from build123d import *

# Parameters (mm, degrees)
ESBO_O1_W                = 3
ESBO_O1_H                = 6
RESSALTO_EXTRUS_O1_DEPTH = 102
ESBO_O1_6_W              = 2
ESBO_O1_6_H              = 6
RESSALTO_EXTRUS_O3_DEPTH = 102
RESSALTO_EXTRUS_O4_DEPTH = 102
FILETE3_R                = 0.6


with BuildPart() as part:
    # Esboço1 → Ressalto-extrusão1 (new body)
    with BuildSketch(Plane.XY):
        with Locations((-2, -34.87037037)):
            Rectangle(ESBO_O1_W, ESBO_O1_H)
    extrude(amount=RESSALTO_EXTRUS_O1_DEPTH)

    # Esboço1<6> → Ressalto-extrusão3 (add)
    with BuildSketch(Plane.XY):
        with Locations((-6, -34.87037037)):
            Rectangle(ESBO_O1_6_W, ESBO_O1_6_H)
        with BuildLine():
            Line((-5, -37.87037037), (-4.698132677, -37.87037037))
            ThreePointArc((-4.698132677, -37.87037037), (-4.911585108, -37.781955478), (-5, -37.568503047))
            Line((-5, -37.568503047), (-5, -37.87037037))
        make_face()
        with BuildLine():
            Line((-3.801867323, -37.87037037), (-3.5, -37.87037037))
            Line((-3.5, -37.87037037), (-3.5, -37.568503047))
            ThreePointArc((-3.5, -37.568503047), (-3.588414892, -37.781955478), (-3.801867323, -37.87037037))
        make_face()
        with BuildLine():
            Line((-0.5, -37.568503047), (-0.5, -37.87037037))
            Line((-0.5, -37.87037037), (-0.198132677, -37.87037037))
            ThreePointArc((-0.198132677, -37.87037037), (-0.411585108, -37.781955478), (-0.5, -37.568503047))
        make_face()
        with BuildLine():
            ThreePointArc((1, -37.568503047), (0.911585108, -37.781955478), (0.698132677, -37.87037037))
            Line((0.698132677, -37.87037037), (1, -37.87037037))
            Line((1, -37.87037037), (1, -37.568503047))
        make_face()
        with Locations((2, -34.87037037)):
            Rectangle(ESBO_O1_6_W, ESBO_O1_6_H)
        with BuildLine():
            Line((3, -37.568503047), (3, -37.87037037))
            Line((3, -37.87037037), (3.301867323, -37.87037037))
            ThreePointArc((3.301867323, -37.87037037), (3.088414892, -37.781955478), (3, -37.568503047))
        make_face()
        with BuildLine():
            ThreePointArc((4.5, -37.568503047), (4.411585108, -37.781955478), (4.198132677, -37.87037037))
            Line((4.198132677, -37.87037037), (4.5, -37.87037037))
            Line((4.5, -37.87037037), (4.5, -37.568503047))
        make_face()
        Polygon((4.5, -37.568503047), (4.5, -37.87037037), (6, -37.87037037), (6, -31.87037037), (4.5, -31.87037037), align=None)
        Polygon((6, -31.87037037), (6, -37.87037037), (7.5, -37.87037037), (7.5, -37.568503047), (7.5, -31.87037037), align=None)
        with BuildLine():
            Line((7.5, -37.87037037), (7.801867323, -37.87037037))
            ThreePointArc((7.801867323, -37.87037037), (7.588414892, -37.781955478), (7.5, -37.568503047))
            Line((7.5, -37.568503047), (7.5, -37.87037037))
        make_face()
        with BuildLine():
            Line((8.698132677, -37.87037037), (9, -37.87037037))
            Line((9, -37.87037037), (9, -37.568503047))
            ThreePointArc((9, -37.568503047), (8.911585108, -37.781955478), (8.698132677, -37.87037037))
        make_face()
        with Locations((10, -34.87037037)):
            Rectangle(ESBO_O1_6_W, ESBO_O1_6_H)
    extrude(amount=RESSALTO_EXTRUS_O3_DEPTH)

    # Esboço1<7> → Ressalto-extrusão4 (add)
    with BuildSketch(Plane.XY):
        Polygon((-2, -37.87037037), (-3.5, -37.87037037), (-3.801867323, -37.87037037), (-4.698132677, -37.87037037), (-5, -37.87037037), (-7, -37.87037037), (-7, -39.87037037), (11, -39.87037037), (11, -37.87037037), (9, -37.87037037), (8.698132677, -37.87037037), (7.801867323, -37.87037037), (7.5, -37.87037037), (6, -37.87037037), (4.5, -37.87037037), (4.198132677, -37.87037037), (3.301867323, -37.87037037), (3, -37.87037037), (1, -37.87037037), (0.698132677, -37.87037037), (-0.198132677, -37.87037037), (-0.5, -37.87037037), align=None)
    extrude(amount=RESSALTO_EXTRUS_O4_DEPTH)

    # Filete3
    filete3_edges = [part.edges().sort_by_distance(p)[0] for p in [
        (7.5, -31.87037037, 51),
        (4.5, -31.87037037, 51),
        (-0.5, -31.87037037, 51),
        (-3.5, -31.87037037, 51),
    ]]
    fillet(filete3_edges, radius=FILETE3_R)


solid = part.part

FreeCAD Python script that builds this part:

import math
import FreeCAD as App
import Part
import Sketcher

V = App.Vector
Q = App.Units.Quantity


def edges_at(feature, points):
    """Names of the edges that pass closest to the given points."""
    edges = feature.Shape.Edges
    near = lambda p: min(range(len(edges)), key=lambda i: edges[i].distToShape(Part.Vertex(*p))[0])
    return sorted({f"Edge{near(p) + 1}" for p in points})

doc = App.newDocument("Part")
body = doc.addObject("PartDesign::Body", "Body")
body.AllowCompound = True

# Sketch on XY plane
sketch1 = body.newObject("Sketcher::SketchObject", "Sketch")
sketch1.AttachmentSupport = (doc.getObject("XY_Plane"), [""])
sketch1.MapMode = "FlatFace"
sketch1.addGeometry([
    Part.LineSegment(V(-3.5, -31.9, 0), V(-3.5, -37.9, 0)),
    Part.LineSegment(V(-3.5, -37.9, 0), V(-0.5, -37.9, 0)),
    Part.LineSegment(V(-0.5, -37.9, 0), V(-0.5, -31.9, 0)),
    Part.LineSegment(V(-0.5, -31.9, 0), V(-3.5, -31.9, 0)),
], False)
sketch1.addConstraint([
    Sketcher.Constraint("Coincident", 0, 2, 1, 1),
    Sketcher.Constraint("Coincident", 1, 2, 2, 1),
    Sketcher.Constraint("Coincident", 2, 2, 3, 1),
    Sketcher.Constraint("Coincident", 3, 2, 0, 1),
    Sketcher.Constraint("Vertical", 0),
    Sketcher.Constraint("Horizontal", 1),
    Sketcher.Constraint("Vertical", 2),
    Sketcher.Constraint("Horizontal", 3),
    Sketcher.Constraint("DistanceX", 1, 1, 1, 2, Q("3 mm")),
    Sketcher.Constraint("DistanceY", 0, 2, 0, 1, Q("6 mm")),
    Sketcher.Constraint("DistanceX", 0, 2, -1, 1, Q("3.5 mm")),
    Sketcher.Constraint("DistanceY", 0, 2, -1, 1, Q("37.87037 mm")),
])
pad1 = body.newObject("PartDesign::Pad", "Pad")
pad1.Profile = sketch1
pad1.Length = 102

# Sketch on XY plane
sketch2 = body.newObject("Sketcher::SketchObject", "Sketch001")
sketch2.AttachmentSupport = (doc.getObject("XY_Plane"), [""])
sketch2.MapMode = "FlatFace"
sketch2.addGeometry([
    Part.LineSegment(V(-7, -31.87, 0), V(-7, -37.87, 0)),  # 0
    Part.LineSegment(V(-7, -37.87, 0), V(-4.7, -37.87, 0)),  # 1
    Part.ArcOfCircle(Part.Circle(V(-4.7, -37.57, 0), V(0, 0, 1), 0.3), math.radians(180), math.radians(270)),  # 2
    Part.LineSegment(V(-5, -37.57, 0), V(-5, -31.87, 0)),  # 3
    Part.LineSegment(V(-5, -31.87, 0), V(-7, -31.87, 0)),  # 4
    Part.LineSegment(V(-3.8, -37.87, 0), V(-3.5, -37.87, 0)),  # 5
    Part.LineSegment(V(-3.5, -37.87, 0), V(-3.5, -37.57, 0)),  # 6
    Part.ArcOfCircle(Part.Circle(V(-3.8, -37.57, 0), V(0, 0, 1), 0.3), math.radians(-90), math.radians(0)),  # 7
    Part.LineSegment(V(-0.5, -37.57, 0), V(-0.5, -37.87, 0)),  # 8
    Part.LineSegment(V(-0.5, -37.87, 0), V(-0.2, -37.87, 0)),  # 9
    Part.ArcOfCircle(Part.Circle(V(-0.2, -37.57, 0), V(0, 0, 1), 0.3), math.radians(180), math.radians(270)),  # 10
    Part.ArcOfCircle(Part.Circle(V(0.7, -37.57, 0), V(0, 0, 1), 0.3), math.radians(-90), math.radians(0)),  # 11
    Part.LineSegment(V(0.7, -37.87, 0), V(3.3, -37.87, 0)),  # 12
    Part.ArcOfCircle(Part.Circle(V(3.3, -37.57, 0), V(0, 0, 1), 0.3), math.radians(180), math.radians(270)),  # 13
    Part.LineSegment(V(3, -37.57, 0), V(3, -31.87, 0)),  # 14
    Part.LineSegment(V(3, -31.87, 0), V(1, -31.87, 0)),  # 15
    Part.LineSegment(V(1, -31.87, 0), V(1, -37.57, 0)),  # 16
    Part.ArcOfCircle(Part.Circle(V(4.2, -37.57, 0), V(0, 0, 1), 0.3), math.radians(-90), math.radians(0)),  # 17
    Part.LineSegment(V(4.2, -37.87, 0), V(7.8, -37.87, 0)),  # 18
    Part.ArcOfCircle(Part.Circle(V(7.8, -37.57, 0), V(0, 0, 1), 0.3), math.radians(180), math.radians(270)),  # 19
    Part.LineSegment(V(7.5, -37.57, 0), V(7.5, -31.87, 0)),  # 20
    Part.LineSegment(V(7.5, -31.87, 0), V(4.5, -31.87, 0)),  # 21
    Part.LineSegment(V(4.5, -31.87, 0), V(4.5, -37.57, 0)),  # 22
    Part.LineSegment(V(8.7, -37.87, 0), V(11, -37.87, 0)),  # 23
    Part.LineSegment(V(11, -37.87, 0), V(11, -31.87, 0)),  # 24
    Part.LineSegment(V(11, -31.87, 0), V(9, -31.87, 0)),  # 25
    Part.LineSegment(V(9, -31.87, 0), V(9, -37.57, 0)),  # 26
    Part.ArcOfCircle(Part.Circle(V(8.7, -37.57, 0), V(0, 0, 1), 0.3), math.radians(-90), math.radians(0)),  # 27
], False)
sketch2.addConstraint([
    Sketcher.Constraint("Coincident", 0, 2, 1, 1),
    Sketcher.Constraint("Tangent", 1, 2, 2, 2),
    Sketcher.Constraint("Tangent", 2, 1, 3, 1),
    Sketcher.Constraint("Coincident", 3, 2, 4, 1),
    Sketcher.Constraint("Coincident", 4, 2, 0, 1),
    Sketcher.Constraint("Coincident", 5, 2, 6, 1),
    Sketcher.Constraint("Tangent", 6, 2, 7, 2),
    Sketcher.Constraint("Tangent", 7, 1, 5, 1),
    Sketcher.Constraint("Coincident", 8, 2, 9, 1),
    Sketcher.Constraint("Tangent", 9, 2, 10, 2),
    Sketcher.Constraint("Tangent", 10, 1, 8, 1),
    Sketcher.Constraint("Tangent", 11, 1, 12, 1),
    Sketcher.Constraint("Tangent", 12, 2, 13, 2),
    Sketcher.Constraint("Tangent", 13, 1, 14, 1),
    Sketcher.Constraint("Coincident", 14, 2, 15, 1),
    Sketcher.Constraint("Coincident", 15, 2, 16, 1),
    Sketcher.Constraint("Tangent", 16, 2, 11, 2),
    Sketcher.Constraint("Tangent", 17, 1, 18, 1),
    Sketcher.Constraint("Tangent", 18, 2, 19, 2),
    Sketcher.Constraint("Tangent", 19, 1, 20, 1),
    Sketcher.Constraint("Coincident", 20, 2, 21, 1),
    Sketcher.Constraint("Coincident", 21, 2, 22, 1),
    Sketcher.Constraint("Tangent", 22, 2, 17, 2),
    Sketcher.Constraint("Coincident", 23, 2, 24, 1),
    Sketcher.Constraint("Coincident", 24, 2, 25, 1),
    Sketcher.Constraint("Coincident", 25, 2, 26, 1),
    Sketcher.Constraint("Tangent", 26, 2, 27, 2),
    Sketcher.Constraint("Tangent", 27, 1, 23, 1),
    Sketcher.Constraint("Vertical", 0),
    Sketcher.Constraint("Horizontal", 1),
    Sketcher.Constraint("Vertical", 3),
    Sketcher.Constraint("Horizontal", 4),
    Sketcher.Constraint("Horizontal", 5),
    Sketcher.Constraint("Vertical", 6),
    Sketcher.Constraint("Vertical", 8),
    Sketcher.Constraint("Horizontal", 9),
    Sketcher.Constraint("Horizontal", 12),
    Sketcher.Constraint("Vertical", 14),
    Sketcher.Constraint("Horizontal", 15),
    Sketcher.Constraint("Vertical", 16),
    Sketcher.Constraint("Horizontal", 18),
    Sketcher.Constraint("Vertical", 20),
    Sketcher.Constraint("Horizontal", 21),
    Sketcher.Constraint("Vertical", 22),
    Sketcher.Constraint("Horizontal", 23),
    Sketcher.Constraint("Vertical", 24),
    Sketcher.Constraint("Horizontal", 25),
    Sketcher.Constraint("Vertical", 26),
    Sketcher.Constraint("Equal", 2, 7),
    Sketcher.Constraint("Equal", 7, 10),
    Sketcher.Constraint("Equal", 10, 11),
    Sketcher.Constraint("Equal", 11, 13),
    Sketcher.Constraint("Equal", 13, 17),
    Sketcher.Constraint("Equal", 17, 19),
    Sketcher.Constraint("Equal", 19, 27),
    Sketcher.Constraint("Horizontal", 2, 3, 7, 3),
    Sketcher.Constraint("Horizontal", 7, 3, 10, 3),
    Sketcher.Constraint("Horizontal", 10, 3, 11, 3),
    Sketcher.Constraint("Horizontal", 13, 3, 17, 3),
    Sketcher.Constraint("Horizontal", 19, 3, 27, 3),
    Sketcher.Constraint("Horizontal", 4, 2, 14, 2),
    Sketcher.Constraint("Horizontal", 15, 2, 20, 2),
    Sketcher.Constraint("Horizontal", 21, 2, 24, 2),
    Sketcher.Constraint("Equal", 4, 15),
    Sketcher.Constraint("Equal", 1, 23),
    Sketcher.Constraint("DistanceX", 4, 2, 4, 1, Q("2 mm")),
    Sketcher.Constraint("DistanceX", 21, 2, 21, 1, Q("3 mm")),
    Sketcher.Constraint("DistanceY", 0, 2, 0, 1, Q("6 mm")),
    Sketcher.Constraint("DistanceX", 0, 2, -1, 1, Q("7 mm")),
    Sketcher.Constraint("DistanceX", -1, 1, 13, 1, Q("3 mm")),
    Sketcher.Constraint("DistanceX", -1, 1, 23, 2, Q("11 mm")),
    Sketcher.Constraint("DistanceX", 7, 3, 17, 3, Q("8 mm")),
    Sketcher.Constraint("DistanceX", 10, 3, 19, 3, Q("8 mm")),
    Sketcher.Constraint("DistanceX", 5, 2, -1, 1, Q("3.5 mm")),
    Sketcher.Constraint("Radius", 2, Q("0.301867 mm")),
    Sketcher.Constraint("DistanceY", 0, 2, -1, 1, Q("37.87037 mm")),
])
pad2 = body.newObject("PartDesign::Pad", "Pad001")
pad2.Profile = sketch2
pad2.Length = 102

# Sketch on XY plane
sketch3 = body.newObject("Sketcher::SketchObject", "Sketch002")
sketch3.AttachmentSupport = (doc.getObject("XY_Plane"), [""])
sketch3.MapMode = "FlatFace"
sketch3.addGeometry([
    Part.LineSegment(V(-7, -37.9, 0), V(-7, -39.9, 0)),
    Part.LineSegment(V(-7, -39.9, 0), V(11, -39.9, 0)),
    Part.LineSegment(V(11, -39.9, 0), V(11, -37.9, 0)),
    Part.LineSegment(V(11, -37.9, 0), V(-7, -37.9, 0)),
], False)
sketch3.addConstraint([
    Sketcher.Constraint("Coincident", 0, 2, 1, 1),
    Sketcher.Constraint("Coincident", 1, 2, 2, 1),
    Sketcher.Constraint("Coincident", 2, 2, 3, 1),
    Sketcher.Constraint("Coincident", 3, 2, 0, 1),
    Sketcher.Constraint("Vertical", 0),
    Sketcher.Constraint("Horizontal", 1),
    Sketcher.Constraint("Vertical", 2),
    Sketcher.Constraint("Horizontal", 3),
    Sketcher.Constraint("DistanceX", 1, 1, 1, 2, Q("18 mm")),
    Sketcher.Constraint("DistanceY", 0, 2, 0, 1, Q("2 mm")),
    Sketcher.Constraint("DistanceX", 0, 2, -1, 1, Q("7 mm")),
    Sketcher.Constraint("DistanceY", 0, 2, -1, 1, Q("39.87037 mm")),
])
pad3 = body.newObject("PartDesign::Pad", "Pad002")
pad3.Profile = sketch3
pad3.Length = 102
doc.recompute()

fillet = body.newObject("PartDesign::Fillet", "Fillet")
fillet.Base = (pad3, edges_at(pad3, [
    (7.5, -31.87, 51),
    (4.5, -31.87, 51),
    (-0.5, -31.87, 51),
    (-3.5, -31.87, 51),
]))
fillet.Radius = 0.6

doc.recompute()
